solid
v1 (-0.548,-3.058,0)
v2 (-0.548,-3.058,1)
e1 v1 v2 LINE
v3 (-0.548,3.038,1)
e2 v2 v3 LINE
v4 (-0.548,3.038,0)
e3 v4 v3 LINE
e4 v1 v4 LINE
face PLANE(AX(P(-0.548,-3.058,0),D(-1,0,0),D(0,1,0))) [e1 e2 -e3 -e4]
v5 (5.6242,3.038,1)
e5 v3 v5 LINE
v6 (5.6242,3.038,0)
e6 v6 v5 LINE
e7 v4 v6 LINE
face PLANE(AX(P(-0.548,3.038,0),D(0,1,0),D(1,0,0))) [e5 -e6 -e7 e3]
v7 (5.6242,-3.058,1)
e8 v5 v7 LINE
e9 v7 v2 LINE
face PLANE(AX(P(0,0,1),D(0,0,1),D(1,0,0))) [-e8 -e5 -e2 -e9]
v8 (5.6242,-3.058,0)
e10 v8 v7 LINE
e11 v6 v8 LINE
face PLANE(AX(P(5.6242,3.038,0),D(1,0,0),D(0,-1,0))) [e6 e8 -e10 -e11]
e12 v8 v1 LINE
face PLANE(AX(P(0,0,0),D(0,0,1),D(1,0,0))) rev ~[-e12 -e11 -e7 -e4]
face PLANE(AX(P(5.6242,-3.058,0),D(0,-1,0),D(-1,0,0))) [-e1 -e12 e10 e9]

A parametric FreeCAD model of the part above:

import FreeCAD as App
import Part
import Sketcher
Q = App.Units.Quantity


def add_polygon(sketch, points):
    """Adds a closed chain of lines whose ends are joined by coincident constraints."""
    first, n = sketch.GeometryCount, len(points)
    for a, b in zip(points, points[1:] + points[:1]):
        sketch.addGeometry(Part.LineSegment(App.Vector(*a, 0), App.Vector(*b, 0)), False)
    for i in range(n):
        sketch.addConstraint(Sketcher.Constraint("Coincident", first + i, 2, first + (i + 1) % n, 1))

doc = App.newDocument("Part")
body = doc.addObject("PartDesign::Body", "Body")

sketch1 = body.newObject("Sketcher::SketchObject", "Sketch")
sketch1.AttachmentSupport = (doc.getObject("XY_Plane"), [""])
sketch1.MapMode = "FlatFace"
add_polygon(sketch1, [(6, 3), (-1, 3), (-1, -3), (6, -3)])
sketch1.addConstraint(Sketcher.Constraint("Horizontal", 0))
sketch1.addConstraint(Sketcher.Constraint("Vertical", 1))
sketch1.addConstraint(Sketcher.Constraint("Horizontal", 2))
sketch1.addConstraint(Sketcher.Constraint("Vertical", 3))
sketch1.addConstraint(Sketcher.Constraint("DistanceY", 1, 2, 1, 1, Q("0.24 in")))
sketch1.addConstraint(Sketcher.Constraint("DistanceX", 0, 2, 0, 1, Q("0.243 in")))
sketch1.addConstraint(Sketcher.Constraint("DistanceY", -1, 1, 0, 2, Q("0.1196 in")))
sketch1.addConstraint(Sketcher.Constraint("DistanceX", 0, 2, -1, 1, 0.548))
pad1 = body.newObject("PartDesign::Pad", "Pad")
pad1.Profile = sketch1
pad1.Length = 1

doc.recompute()
